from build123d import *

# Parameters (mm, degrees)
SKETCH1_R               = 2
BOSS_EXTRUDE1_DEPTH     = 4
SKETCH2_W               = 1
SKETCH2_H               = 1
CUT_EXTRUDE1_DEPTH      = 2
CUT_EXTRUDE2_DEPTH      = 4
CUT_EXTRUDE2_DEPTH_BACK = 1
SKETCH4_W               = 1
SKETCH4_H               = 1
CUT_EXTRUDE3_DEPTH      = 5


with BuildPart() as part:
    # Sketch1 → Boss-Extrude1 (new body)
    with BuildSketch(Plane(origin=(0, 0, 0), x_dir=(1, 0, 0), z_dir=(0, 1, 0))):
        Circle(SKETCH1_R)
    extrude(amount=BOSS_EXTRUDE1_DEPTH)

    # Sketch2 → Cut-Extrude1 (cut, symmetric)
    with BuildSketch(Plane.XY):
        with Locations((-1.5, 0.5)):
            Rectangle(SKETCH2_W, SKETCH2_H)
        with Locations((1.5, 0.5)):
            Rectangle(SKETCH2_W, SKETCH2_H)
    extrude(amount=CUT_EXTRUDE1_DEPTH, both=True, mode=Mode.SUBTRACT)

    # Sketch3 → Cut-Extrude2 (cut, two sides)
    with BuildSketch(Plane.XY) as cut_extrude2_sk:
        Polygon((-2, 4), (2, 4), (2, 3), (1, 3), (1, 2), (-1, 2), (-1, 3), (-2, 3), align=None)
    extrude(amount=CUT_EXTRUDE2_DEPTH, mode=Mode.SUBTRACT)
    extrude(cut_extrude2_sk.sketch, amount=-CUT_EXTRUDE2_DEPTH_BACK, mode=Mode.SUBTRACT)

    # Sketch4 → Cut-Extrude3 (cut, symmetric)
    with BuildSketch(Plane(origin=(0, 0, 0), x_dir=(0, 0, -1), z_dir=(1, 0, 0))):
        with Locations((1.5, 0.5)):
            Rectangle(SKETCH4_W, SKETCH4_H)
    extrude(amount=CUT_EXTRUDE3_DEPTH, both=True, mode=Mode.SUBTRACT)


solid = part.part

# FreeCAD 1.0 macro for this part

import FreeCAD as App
import Part
import Sketcher
Q = App.Units.Quantity

doc = App.newDocument("Part")
body = doc.addObject("PartDesign::Body", "Body")

sketch1 = body.newObject("Sketcher::SketchObject", "Sketch")
sketch1.AttachmentSupport = (doc.getObject("XZ_Plane"), [""])
sketch1.MapMode = "FlatFace"
sketch1.addGeometry(Part.Circle(App.Vector(0, 0, 0), App.Vector(0, 0, 1), 2), False)
sketch1.addConstraint(Sketcher.Constraint("Coincident", 0, 3, -1, 1))
sketch1.addConstraint(Sketcher.Constraint("Diameter", 0, Q("4 mm")))
pad1 = body.newObject("PartDesign::Pad", "Pad")
pad1.Profile = sketch1
pad1.Length = 4
pad1.Reversed = True

sketch2 = body.newObject("Sketcher::SketchObject", "Sketch001")
sketch2.AttachmentSupport = (doc.getObject("XY_Plane"), [""])
sketch2.MapMode = "FlatFace"
sketch2.addGeometry(Part.LineSegment(App.Vector(-2, 1, 0), App.Vector(-2, 0, 0)), False)
sketch2.addGeometry(Part.LineSegment(App.Vector(-2, 0, 0), App.Vector(-1, 0, 0)), False)
sketch2.addGeometry(Part.LineSegment(App.Vector(-1, 0, 0), App.Vector(-1, 1, 0)), False)
sketch2.addGeometry(Part.LineSegment(App.Vector(-1, 1, 0), App.Vector(-2, 1, 0)), False)
sketch2.addGeometry(Part.LineSegment(App.Vector(1, 1, 0), App.Vector(1, 0, 0)), False)
sketch2.addGeometry(Part.LineSegment(App.Vector(1, 0, 0), App.Vector(2, 0, 0)), False)
sketch2.addGeometry(Part.LineSegment(App.Vector(2, 0, 0), App.Vector(2, 1, 0)), False)
sketch2.addGeometry(Part.LineSegment(App.Vector(2, 1, 0), App.Vector(1, 1, 0)), False)
sketch2.addConstraint(Sketcher.Constraint("Coincident", 0, 2, 1, 1))
sketch2.addConstraint(Sketcher.Constraint("Coincident", 1, 2, 2, 1))
sketch2.addConstraint(Sketcher.Constraint("Coincident", 2, 2, 3, 1))
sketch2.addConstraint(Sketcher.Constraint("Coincident", 3, 2, 0, 1))
sketch2.addConstraint(Sketcher.Constraint("Coincident", 4, 2, 5, 1))
sketch2.addConstraint(Sketcher.Constraint("Coincident", 5, 2, 6, 1))
sketch2.addConstraint(Sketcher.Constraint("Coincident", 6, 2, 7, 1))
sketch2.addConstraint(Sketcher.Constraint("Coincident", 7, 2, 4, 1))
sketch2.addConstraint(Sketcher.Constraint("Vertical", 0))
sketch2.addConstraint(Sketcher.Constraint("Horizontal", 1))
sketch2.addConstraint(Sketcher.Constraint("Vertical", 2))
sketch2.addConstraint(Sketcher.Constraint("Horizontal", 3))
sketch2.addConstraint(Sketcher.Constraint("Vertical", 4))
sketch2.addConstraint(Sketcher.Constraint("Horizontal", 5))
sketch2.addConstraint(Sketcher.Constraint("Vertical", 6))
sketch2.addConstraint(Sketcher.Constraint("Horizontal", 7))
sketch2.addConstraint(Sketcher.Constraint("Symmetric", 1, 2, 4, 2, -1, 1))
sketch2.addConstraint(Sketcher.Constraint("Symmetric", 0, 2, 5, 2, -2))
sketch2.addConstraint(Sketcher.Constraint("Horizontal", 3, 2, 6, 2))
sketch2.addConstraint(Sketcher.Constraint("Equal", 7, 0))
sketch2.addConstraint(Sketcher.Constraint("DistanceX", 1, 1, 1, 2, Q("1 mm")))
sketch2.addConstraint(Sketcher.Constraint("DistanceX", 0, 2, -1, 1, Q("2 mm")))
pocket1 = body.newObject("PartDesign::Pocket", "Pocket")
pocket1.Profile = sketch2
pocket1.Length = 4
pocket1.Midplane = True

sketch3 = body.newObject("Sketcher::SketchObject", "Sketch002")
sketch3.AttachmentSupport = (doc.getObject("XY_Plane"), [""])
sketch3.MapMode = "FlatFace"
sketch3.addGeometry(Part.LineSegment(App.Vector(2, 4, 0), App.Vector(-2, 4, 0)), False)
sketch3.addGeometry(Part.LineSegment(App.Vector(-2, 4, 0), App.Vector(-2, 3, 0)), False)
sketch3.addGeometry(Part.LineSegment(App.Vector(-2, 3, 0), App.Vector(-1, 3, 0)), False)
sketch3.addGeometry(Part.LineSegment(App.Vector(-1, 3, 0), App.Vector(-1, 2, 0)), False)
sketch3.addGeometry(Part.LineSegment(App.Vector(-1, 2, 0), App.Vector(1, 2, 0)), False)
sketch3.addGeometry(Part.LineSegment(App.Vector(1, 2, 0), App.Vector(1, 3, 0)), False)
sketch3.addGeometry(Part.LineSegment(App.Vector(1, 3, 0), App.Vector(2, 3, 0)), False)
sketch3.addGeometry(Part.LineSegment(App.Vector(2, 3, 0), App.Vector(2, 4, 0)), False)
sketch3.addConstraint(Sketcher.Constraint("Coincident", 0, 2, 1, 1))
sketch3.addConstraint(Sketcher.Constraint("Coincident", 1, 2, 2, 1))
sketch3.addConstraint(Sketcher.Constraint("Coincident", 2, 2, 3, 1))
sketch3.addConstraint(Sketcher.Constraint("Coincident", 3, 2, 4, 1))
sketch3.addConstraint(Sketcher.Constraint("Coincident", 4, 2, 5, 1))
sketch3.addConstraint(Sketcher.Constraint("Coincident", 5, 2, 6, 1))
sketch3.addConstraint(Sketcher.Constraint("Coincident", 6, 2, 7, 1))
sketch3.addConstraint(Sketcher.Constraint("Coincident", 7, 2, 0, 1))
sketch3.addConstraint(Sketcher.Constraint("Horizontal", 0))
sketch3.addConstraint(Sketcher.Constraint("Vertical", 1))
sketch3.addConstraint(Sketcher.Constraint("Horizontal", 2))
sketch3.addConstraint(Sketcher.Constraint("Vertical", 3))
sketch3.addConstraint(Sketcher.Constraint("Horizontal", 4))
sketch3.addConstraint(Sketcher.Constraint("Vertical", 5))
sketch3.addConstraint(Sketcher.Constraint("Horizontal", 6))
sketch3.addConstraint(Sketcher.Constraint("Vertical", 7))
sketch3.addConstraint(Sketcher.Constraint("Symmetric", 2, 2, 5, 2, -2))
sketch3.addConstraint(Sketcher.Constraint("Equal", 2, 6))
sketch3.addConstraint(Sketcher.Constraint("Equal", 6, 1))
sketch3.addConstraint(Sketcher.Constraint("Equal", 1, 3))
sketch3.addConstraint(Sketcher.Constraint("DistanceX", 0, 2, 0, 1, Q("4 mm")))
sketch3.addConstraint(Sketcher.Constraint("DistanceX", 2, 1, 2, 2, Q("1 mm")))
sketch3.addConstraint(Sketcher.Constraint("DistanceY", -1, 1, 0, 2, Q("4 mm")))
pocket2 = body.newObject("PartDesign::Pocket", "Pocket001")
pocket2.Profile = sketch3
pocket2.Type = "TwoLengths"
pocket2.Length = 4
pocket2.Length2 = 1
pocket2.Reversed = True

sketch4 = body.newObject("Sketcher::SketchObject", "Sketch003")
sketch4.AttachmentSupport = (doc.getObject("YZ_Plane"), [""])
sketch4.MapMode = "FlatFace"
sketch4.addGeometry(Part.LineSegment(App.Vector(1, -1, 0), App.Vector(0, -1, 0)), False)
sketch4.addGeometry(Part.LineSegment(App.Vector(0, -1, 0), App.Vector(0, -2, 0)), False)
sketch4.addGeometry(Part.LineSegment(App.Vector(0, -2, 0), App.Vector(1, -2, 0)), False)
sketch4.addGeometry(Part.LineSegment(App.Vector(1, -2, 0), App.Vector(1, -1, 0)), False)
sketch4.addConstraint(Sketcher.Constraint("Coincident", 0, 2, 1, 1))
sketch4.addConstraint(Sketcher.Constraint("Coincident", 1, 2, 2, 1))
sketch4.addConstraint(Sketcher.Constraint("Coincident", 2, 2, 3, 1))
sketch4.addConstraint(Sketcher.Constraint("Coincident", 3, 2, 0, 1))
sketch4.addConstraint(Sketcher.Constraint("Horizontal", 0))
sketch4.addConstraint(Sketcher.Constraint("Vertical", 1))
sketch4.addConstraint(Sketcher.Constraint("Horizontal", 2))
sketch4.addConstraint(Sketcher.Constraint("Vertical", 3))
sketch4.addConstraint(Sketcher.Constraint("PointOnObject", 0, 2, -2))
sketch4.addConstraint(Sketcher.Constraint("Equal", 2, 1))
sketch4.addConstraint(Sketcher.Constraint("DistanceX", 0, 2, 0, 1, Q("1 mm")))
sketch4.addConstraint(Sketcher.Constraint("DistanceY", 0, 2, -1, 1, Q("1 mm")))
pocket3 = body.newObject("PartDesign::Pocket", "Pocket002")
pocket3.Profile = sketch4
pocket3.Length = 10
pocket3.Midplane = True

doc.recompute()
